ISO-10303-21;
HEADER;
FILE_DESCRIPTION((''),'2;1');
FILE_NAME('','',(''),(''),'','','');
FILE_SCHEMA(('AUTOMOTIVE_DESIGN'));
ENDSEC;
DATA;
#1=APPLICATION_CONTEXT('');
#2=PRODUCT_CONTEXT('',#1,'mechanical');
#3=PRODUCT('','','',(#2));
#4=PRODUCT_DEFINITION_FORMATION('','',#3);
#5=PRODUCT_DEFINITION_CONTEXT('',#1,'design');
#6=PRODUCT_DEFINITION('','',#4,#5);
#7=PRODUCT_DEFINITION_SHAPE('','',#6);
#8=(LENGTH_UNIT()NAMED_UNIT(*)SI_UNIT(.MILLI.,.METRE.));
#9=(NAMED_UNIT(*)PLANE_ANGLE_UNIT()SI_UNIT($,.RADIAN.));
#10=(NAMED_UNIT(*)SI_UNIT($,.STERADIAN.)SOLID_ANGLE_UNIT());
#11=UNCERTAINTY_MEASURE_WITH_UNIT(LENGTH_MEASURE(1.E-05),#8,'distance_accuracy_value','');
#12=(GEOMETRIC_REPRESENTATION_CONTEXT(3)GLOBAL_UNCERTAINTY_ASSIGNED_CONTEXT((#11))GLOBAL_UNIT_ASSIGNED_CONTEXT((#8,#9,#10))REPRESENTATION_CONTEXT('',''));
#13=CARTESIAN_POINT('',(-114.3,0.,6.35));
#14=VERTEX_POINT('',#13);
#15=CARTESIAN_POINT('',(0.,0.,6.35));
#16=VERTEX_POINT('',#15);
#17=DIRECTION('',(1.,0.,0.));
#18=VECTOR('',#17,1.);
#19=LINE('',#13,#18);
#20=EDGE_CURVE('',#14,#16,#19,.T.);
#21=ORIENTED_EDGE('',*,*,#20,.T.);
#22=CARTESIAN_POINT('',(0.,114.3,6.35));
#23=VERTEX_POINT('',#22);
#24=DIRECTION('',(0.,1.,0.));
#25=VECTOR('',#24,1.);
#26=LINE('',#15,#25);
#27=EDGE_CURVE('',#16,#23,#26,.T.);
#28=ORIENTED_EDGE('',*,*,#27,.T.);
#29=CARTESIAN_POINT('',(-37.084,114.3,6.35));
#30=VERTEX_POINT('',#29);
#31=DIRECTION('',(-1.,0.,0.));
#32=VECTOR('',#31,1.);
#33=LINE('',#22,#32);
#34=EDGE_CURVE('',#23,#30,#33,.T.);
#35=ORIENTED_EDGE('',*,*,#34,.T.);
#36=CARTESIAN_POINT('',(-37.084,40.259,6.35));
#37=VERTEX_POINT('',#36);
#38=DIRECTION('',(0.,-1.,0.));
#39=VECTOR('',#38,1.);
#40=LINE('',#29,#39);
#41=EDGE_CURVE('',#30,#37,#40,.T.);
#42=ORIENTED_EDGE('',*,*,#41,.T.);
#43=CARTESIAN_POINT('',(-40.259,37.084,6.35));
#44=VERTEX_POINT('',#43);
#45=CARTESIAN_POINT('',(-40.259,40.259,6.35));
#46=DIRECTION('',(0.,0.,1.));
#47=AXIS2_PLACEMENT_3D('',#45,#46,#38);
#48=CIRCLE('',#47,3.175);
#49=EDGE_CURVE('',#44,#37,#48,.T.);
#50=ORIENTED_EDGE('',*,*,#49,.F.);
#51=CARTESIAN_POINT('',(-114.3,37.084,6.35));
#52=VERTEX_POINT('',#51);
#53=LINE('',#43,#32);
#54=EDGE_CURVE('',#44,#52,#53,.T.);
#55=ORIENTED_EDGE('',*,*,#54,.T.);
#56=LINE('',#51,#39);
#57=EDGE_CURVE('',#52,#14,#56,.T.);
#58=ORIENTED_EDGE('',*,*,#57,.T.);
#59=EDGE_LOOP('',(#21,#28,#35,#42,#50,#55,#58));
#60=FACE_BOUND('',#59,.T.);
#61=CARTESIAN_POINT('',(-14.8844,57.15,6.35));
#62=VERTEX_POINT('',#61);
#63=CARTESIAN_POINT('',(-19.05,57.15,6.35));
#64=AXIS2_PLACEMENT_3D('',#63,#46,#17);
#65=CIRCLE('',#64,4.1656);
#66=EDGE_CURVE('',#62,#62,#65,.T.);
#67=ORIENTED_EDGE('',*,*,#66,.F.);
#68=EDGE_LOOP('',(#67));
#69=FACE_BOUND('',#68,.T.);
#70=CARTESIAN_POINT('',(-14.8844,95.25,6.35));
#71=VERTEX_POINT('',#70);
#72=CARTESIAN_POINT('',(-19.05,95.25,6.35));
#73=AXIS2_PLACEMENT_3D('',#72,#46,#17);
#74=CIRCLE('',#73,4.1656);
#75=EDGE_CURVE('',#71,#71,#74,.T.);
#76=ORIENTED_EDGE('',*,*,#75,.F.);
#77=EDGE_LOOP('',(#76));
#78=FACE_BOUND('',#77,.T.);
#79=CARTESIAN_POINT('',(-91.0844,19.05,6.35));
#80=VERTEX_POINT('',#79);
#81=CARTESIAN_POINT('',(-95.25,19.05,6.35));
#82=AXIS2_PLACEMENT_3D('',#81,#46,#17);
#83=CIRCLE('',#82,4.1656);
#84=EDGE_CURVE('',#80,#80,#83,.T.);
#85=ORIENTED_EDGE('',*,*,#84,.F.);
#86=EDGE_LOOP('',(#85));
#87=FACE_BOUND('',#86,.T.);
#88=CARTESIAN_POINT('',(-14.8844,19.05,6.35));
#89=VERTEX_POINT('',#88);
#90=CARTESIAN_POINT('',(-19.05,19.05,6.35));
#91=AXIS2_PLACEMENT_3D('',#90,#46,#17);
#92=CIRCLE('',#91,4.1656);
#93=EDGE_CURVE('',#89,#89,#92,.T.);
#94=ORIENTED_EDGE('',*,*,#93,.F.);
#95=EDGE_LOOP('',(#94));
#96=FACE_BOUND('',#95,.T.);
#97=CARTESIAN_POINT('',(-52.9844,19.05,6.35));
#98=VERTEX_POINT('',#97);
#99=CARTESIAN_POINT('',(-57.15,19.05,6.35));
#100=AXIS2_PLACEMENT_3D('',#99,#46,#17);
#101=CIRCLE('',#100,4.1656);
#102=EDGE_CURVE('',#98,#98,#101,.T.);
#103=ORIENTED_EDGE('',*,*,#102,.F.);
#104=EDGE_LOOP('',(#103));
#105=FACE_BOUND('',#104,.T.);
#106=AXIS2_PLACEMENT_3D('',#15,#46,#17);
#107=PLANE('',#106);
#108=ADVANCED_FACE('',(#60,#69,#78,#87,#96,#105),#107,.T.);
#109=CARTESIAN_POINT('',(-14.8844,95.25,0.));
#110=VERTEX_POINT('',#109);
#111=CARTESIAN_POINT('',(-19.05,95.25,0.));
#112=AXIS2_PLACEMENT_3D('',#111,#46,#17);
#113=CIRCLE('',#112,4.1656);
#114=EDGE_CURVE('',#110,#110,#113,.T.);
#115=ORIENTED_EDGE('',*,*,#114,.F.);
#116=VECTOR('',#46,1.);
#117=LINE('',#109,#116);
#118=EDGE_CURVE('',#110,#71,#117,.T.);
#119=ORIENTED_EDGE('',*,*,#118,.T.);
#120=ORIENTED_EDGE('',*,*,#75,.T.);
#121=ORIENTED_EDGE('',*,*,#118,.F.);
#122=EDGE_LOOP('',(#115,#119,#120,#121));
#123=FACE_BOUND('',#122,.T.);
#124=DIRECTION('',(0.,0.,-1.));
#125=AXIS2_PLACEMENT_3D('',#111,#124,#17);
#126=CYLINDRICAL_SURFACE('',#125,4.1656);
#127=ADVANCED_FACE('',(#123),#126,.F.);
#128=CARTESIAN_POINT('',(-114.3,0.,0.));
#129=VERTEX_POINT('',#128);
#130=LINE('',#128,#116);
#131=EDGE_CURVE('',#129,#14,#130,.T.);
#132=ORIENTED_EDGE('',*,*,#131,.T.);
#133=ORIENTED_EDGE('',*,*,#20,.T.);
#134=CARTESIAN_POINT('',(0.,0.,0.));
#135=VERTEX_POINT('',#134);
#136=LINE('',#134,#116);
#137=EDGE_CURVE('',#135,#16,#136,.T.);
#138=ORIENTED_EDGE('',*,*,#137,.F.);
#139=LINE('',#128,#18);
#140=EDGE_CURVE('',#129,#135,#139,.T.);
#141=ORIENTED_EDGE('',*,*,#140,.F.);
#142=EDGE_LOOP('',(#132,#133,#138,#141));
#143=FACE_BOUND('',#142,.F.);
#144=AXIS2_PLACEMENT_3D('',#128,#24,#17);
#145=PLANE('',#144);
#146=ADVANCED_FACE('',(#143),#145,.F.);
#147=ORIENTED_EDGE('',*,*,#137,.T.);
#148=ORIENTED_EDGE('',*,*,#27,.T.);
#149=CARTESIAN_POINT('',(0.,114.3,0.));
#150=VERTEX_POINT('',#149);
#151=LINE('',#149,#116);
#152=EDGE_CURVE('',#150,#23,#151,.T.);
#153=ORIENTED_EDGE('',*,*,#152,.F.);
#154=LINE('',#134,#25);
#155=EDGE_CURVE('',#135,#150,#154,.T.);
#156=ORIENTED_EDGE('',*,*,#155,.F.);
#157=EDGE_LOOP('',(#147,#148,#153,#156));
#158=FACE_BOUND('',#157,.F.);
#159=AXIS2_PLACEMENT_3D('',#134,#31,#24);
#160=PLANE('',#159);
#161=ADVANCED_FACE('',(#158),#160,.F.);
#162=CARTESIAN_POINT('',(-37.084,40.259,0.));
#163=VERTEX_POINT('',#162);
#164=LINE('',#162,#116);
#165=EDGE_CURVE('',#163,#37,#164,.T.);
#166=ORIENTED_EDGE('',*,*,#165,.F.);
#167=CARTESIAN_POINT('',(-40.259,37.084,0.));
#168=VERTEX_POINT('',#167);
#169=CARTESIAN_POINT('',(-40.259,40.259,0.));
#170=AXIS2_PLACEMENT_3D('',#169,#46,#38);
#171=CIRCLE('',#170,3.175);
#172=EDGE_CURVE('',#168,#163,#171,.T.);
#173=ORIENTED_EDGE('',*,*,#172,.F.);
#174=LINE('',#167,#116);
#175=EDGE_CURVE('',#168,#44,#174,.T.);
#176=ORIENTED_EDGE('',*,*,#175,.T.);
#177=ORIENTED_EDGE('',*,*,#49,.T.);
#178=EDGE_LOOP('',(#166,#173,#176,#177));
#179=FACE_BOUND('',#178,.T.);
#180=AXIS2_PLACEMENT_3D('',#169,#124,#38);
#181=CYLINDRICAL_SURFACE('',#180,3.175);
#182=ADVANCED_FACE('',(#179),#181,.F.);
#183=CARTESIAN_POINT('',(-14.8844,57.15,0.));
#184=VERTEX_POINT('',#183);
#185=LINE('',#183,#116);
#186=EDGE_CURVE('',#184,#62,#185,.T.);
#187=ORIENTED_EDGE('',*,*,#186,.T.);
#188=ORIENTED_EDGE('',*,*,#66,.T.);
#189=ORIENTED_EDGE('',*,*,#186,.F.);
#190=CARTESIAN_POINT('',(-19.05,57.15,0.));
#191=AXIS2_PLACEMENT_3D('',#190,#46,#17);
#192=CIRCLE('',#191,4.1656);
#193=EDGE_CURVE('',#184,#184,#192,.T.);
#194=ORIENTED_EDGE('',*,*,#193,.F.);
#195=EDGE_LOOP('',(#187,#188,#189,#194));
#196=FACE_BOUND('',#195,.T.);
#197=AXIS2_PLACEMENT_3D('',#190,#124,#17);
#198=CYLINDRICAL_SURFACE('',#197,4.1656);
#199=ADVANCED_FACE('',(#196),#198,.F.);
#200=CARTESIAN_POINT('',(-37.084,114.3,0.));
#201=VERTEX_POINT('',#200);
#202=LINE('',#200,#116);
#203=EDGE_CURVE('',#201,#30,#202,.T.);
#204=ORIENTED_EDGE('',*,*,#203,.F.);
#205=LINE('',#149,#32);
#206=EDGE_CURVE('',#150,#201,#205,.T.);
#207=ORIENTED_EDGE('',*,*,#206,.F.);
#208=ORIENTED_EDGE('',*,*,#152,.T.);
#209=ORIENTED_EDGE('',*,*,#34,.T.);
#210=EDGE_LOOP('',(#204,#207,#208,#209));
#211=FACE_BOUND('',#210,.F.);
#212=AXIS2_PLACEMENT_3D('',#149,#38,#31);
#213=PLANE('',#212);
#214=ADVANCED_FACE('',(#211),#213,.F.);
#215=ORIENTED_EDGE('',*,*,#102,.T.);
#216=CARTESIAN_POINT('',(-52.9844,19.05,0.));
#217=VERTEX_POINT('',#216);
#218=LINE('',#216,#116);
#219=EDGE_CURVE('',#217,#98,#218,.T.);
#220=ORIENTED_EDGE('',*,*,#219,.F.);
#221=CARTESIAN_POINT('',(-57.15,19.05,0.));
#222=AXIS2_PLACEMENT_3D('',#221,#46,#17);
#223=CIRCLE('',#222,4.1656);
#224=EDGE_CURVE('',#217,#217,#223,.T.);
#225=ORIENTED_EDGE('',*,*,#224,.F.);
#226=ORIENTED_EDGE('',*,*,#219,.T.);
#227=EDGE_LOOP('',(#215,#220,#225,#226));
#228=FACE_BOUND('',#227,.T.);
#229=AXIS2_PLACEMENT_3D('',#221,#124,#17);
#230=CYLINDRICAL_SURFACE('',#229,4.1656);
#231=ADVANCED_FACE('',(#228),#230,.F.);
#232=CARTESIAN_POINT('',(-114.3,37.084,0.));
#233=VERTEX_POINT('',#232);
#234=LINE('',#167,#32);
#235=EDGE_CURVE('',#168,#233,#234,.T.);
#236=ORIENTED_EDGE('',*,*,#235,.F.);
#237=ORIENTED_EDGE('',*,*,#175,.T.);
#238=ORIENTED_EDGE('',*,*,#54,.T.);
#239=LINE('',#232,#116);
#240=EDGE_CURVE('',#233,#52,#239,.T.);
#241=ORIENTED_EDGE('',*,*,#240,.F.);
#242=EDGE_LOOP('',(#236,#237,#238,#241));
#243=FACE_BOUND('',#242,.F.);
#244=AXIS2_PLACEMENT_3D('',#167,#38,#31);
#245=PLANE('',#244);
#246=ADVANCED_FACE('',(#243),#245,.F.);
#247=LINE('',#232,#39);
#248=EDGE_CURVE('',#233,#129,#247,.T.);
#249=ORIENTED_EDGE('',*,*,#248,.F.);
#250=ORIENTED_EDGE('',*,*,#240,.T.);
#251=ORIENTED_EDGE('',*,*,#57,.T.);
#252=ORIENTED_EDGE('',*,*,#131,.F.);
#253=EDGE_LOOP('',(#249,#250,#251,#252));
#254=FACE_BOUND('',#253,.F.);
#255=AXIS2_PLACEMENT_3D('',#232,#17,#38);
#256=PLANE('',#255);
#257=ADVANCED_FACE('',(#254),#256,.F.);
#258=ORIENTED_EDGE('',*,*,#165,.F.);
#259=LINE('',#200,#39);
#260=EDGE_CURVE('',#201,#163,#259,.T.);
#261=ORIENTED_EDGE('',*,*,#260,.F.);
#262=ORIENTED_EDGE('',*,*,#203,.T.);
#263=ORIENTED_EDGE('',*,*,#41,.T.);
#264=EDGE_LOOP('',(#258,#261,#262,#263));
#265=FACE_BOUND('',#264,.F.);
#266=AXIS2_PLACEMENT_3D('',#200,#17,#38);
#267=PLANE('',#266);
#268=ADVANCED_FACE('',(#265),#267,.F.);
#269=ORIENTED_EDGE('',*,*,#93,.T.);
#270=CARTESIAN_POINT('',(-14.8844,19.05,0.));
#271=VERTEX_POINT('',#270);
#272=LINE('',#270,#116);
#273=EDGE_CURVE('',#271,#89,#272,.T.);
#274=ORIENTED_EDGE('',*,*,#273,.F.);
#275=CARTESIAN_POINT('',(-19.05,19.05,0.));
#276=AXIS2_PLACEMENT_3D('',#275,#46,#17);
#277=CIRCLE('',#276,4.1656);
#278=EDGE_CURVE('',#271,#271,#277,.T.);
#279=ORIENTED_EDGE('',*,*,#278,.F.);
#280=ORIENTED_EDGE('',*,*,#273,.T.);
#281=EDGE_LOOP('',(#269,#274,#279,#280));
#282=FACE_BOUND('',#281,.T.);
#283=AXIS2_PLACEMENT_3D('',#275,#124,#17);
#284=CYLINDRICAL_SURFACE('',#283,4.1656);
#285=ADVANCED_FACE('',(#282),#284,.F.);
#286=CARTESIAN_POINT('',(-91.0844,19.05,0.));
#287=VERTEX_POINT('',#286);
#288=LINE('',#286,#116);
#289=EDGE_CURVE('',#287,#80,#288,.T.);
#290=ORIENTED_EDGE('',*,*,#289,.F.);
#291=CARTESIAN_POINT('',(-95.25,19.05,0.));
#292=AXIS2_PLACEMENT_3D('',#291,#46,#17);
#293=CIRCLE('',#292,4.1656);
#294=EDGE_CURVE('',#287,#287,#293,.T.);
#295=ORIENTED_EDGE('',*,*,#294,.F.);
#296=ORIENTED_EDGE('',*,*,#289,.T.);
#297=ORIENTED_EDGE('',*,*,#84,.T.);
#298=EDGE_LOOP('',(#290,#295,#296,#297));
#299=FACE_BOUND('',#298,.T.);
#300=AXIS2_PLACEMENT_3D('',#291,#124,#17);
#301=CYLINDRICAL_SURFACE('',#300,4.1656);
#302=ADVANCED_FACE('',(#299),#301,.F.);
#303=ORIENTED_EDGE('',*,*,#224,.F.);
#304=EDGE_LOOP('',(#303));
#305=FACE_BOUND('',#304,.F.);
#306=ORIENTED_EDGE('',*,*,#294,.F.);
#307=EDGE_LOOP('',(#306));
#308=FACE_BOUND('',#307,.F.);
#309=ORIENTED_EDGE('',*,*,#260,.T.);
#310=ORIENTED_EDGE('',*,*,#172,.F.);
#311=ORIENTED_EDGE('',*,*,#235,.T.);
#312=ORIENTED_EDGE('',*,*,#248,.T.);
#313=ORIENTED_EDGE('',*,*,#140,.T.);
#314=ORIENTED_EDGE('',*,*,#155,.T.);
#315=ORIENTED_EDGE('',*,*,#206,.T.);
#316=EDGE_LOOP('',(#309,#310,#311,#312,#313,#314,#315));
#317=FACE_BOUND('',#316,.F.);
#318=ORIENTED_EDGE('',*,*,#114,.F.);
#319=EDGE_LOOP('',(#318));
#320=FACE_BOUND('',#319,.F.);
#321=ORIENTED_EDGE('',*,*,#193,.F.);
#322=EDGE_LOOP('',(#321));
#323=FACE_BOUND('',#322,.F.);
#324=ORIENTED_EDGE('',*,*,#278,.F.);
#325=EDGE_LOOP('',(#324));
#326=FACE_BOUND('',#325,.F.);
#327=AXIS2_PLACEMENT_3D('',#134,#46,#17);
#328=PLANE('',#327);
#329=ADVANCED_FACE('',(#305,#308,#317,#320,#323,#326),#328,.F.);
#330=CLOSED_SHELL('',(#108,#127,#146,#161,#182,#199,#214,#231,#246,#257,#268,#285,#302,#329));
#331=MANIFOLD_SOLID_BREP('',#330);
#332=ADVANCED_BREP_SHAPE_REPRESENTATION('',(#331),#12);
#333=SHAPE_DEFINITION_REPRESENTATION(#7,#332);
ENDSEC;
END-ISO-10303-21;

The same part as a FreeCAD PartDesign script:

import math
import FreeCAD as App
import Part
import Sketcher
Q = App.Units.Quantity

doc = App.newDocument("Part")
body = doc.addObject("PartDesign::Body", "Body")

# Sketch on XY plane
sketch1 = body.newObject("Sketcher::SketchObject", "Sketch")
sketch1.AttachmentSupport = (doc.getObject("XY_Plane"), [""])
sketch1.MapMode = "FlatFace"
sketch1.addGeometry([
    Part.LineSegment(App.Vector(-40.3, 37.1, 0), App.Vector(-114.3, 37.1, 0)),  # 0
    Part.LineSegment(App.Vector(-114.3, 37.1, 0), App.Vector(-114.3, 0, 0)),  # 1
    Part.LineSegment(App.Vector(-114.3, 0, 0), App.Vector(0, 0, 0)),  # 2
    Part.LineSegment(App.Vector(0, 0, 0), App.Vector(0, 114.3, 0)),  # 3
    Part.LineSegment(App.Vector(0, 114.3, 0), App.Vector(-37.1, 114.3, 0)),  # 4
    Part.LineSegment(App.Vector(-37.1, 114.3, 0), App.Vector(-37.1, 40.3, 0)),  # 5
    Part.ArcOfCircle(Part.Circle(App.Vector(-40.3, 40.3, 0), App.Vector(0, 0, 1), 3.2), math.radians(-90), math.radians(0)),  # 6
    Part.Circle(App.Vector(-95.2, 19.1, 0), App.Vector(0, 0, 1), 4.2),  # 7
    Part.Circle(App.Vector(-57.1, 19.1, 0), App.Vector(0, 0, 1), 4.2),  # 8
    Part.Circle(App.Vector(-19.1, 19.1, 0), App.Vector(0, 0, 1), 4.2),  # 9
    Part.Circle(App.Vector(-19.1, 57.1, 0), App.Vector(0, 0, 1), 4.2),  # 10
    Part.Circle(App.Vector(-19.1, 95.2, 0), App.Vector(0, 0, 1), 4.2),  # 11
], False)
sketch1.addConstraint([
    Sketcher.Constraint("Coincident", 0, 2, 1, 1),
    Sketcher.Constraint("Coincident", 1, 2, 2, 1),
    Sketcher.Constraint("Coincident", 2, 2, 3, 1),
    Sketcher.Constraint("Coincident", 3, 2, 4, 1),
    Sketcher.Constraint("Coincident", 4, 2, 5, 1),
    Sketcher.Constraint("Tangent", 5, 2, 6, 2),
    Sketcher.Constraint("Tangent", 6, 1, 0, 1),
    Sketcher.Constraint("Horizontal", 0),
    Sketcher.Constraint("Vertical", 1),
    Sketcher.Constraint("Horizontal", 2),
    Sketcher.Constraint("Vertical", 3),
    Sketcher.Constraint("Horizontal", 4),
    Sketcher.Constraint("Vertical", 5),
    Sketcher.Constraint("Coincident", 2, 2, -1, 1),
    Sketcher.Constraint("Equal", 7, 8),
    Sketcher.Constraint("Equal", 8, 9),
    Sketcher.Constraint("Equal", 9, 10),
    Sketcher.Constraint("Equal", 10, 11),
    Sketcher.Constraint("Horizontal", 7, 3, 8, 3),
    Sketcher.Constraint("Horizontal", 8, 3, 9, 3),
    Sketcher.Constraint("Vertical", 9, 3, 10, 3),
    Sketcher.Constraint("Vertical", 10, 3, 11, 3),
    Sketcher.Constraint("Equal", 4, 1),
    Sketcher.Constraint("Equal", 2, 3),
    Sketcher.Constraint("Diameter", 7, Q("0.328 in")),
    Sketcher.Constraint("DistanceX", 2, 1, 2, 2, Q("4.5 in")),
    Sketcher.Constraint("Radius", 6, Q("0.125 in")),
    Sketcher.Constraint("DistanceX", 7, 3, 9, 3, Q("3 in")),
    Sketcher.Constraint("DistanceY", 9, 3, 11, 3, Q("3 in")),
    Sketcher.Constraint("DistanceX", 4, 2, 4, 1, Q("1.46 in")),
    Sketcher.Constraint("DistanceX", 7, 3, 8, 3, Q("1.5 in")),
    Sketcher.Constraint("DistanceY", 9, 3, 10, 3, Q("1.5 in")),
    Sketcher.Constraint("DistanceX", 7, 3, -1, 1, Q("3.75 in")),
    Sketcher.Constraint("DistanceY", -1, 1, 7, 3, Q("0.75 in")),
])
pad1 = body.newObject("PartDesign::Pad", "Pad")
pad1.Profile = sketch1
pad1.Length = Q("0.25 in")

doc.recompute()
